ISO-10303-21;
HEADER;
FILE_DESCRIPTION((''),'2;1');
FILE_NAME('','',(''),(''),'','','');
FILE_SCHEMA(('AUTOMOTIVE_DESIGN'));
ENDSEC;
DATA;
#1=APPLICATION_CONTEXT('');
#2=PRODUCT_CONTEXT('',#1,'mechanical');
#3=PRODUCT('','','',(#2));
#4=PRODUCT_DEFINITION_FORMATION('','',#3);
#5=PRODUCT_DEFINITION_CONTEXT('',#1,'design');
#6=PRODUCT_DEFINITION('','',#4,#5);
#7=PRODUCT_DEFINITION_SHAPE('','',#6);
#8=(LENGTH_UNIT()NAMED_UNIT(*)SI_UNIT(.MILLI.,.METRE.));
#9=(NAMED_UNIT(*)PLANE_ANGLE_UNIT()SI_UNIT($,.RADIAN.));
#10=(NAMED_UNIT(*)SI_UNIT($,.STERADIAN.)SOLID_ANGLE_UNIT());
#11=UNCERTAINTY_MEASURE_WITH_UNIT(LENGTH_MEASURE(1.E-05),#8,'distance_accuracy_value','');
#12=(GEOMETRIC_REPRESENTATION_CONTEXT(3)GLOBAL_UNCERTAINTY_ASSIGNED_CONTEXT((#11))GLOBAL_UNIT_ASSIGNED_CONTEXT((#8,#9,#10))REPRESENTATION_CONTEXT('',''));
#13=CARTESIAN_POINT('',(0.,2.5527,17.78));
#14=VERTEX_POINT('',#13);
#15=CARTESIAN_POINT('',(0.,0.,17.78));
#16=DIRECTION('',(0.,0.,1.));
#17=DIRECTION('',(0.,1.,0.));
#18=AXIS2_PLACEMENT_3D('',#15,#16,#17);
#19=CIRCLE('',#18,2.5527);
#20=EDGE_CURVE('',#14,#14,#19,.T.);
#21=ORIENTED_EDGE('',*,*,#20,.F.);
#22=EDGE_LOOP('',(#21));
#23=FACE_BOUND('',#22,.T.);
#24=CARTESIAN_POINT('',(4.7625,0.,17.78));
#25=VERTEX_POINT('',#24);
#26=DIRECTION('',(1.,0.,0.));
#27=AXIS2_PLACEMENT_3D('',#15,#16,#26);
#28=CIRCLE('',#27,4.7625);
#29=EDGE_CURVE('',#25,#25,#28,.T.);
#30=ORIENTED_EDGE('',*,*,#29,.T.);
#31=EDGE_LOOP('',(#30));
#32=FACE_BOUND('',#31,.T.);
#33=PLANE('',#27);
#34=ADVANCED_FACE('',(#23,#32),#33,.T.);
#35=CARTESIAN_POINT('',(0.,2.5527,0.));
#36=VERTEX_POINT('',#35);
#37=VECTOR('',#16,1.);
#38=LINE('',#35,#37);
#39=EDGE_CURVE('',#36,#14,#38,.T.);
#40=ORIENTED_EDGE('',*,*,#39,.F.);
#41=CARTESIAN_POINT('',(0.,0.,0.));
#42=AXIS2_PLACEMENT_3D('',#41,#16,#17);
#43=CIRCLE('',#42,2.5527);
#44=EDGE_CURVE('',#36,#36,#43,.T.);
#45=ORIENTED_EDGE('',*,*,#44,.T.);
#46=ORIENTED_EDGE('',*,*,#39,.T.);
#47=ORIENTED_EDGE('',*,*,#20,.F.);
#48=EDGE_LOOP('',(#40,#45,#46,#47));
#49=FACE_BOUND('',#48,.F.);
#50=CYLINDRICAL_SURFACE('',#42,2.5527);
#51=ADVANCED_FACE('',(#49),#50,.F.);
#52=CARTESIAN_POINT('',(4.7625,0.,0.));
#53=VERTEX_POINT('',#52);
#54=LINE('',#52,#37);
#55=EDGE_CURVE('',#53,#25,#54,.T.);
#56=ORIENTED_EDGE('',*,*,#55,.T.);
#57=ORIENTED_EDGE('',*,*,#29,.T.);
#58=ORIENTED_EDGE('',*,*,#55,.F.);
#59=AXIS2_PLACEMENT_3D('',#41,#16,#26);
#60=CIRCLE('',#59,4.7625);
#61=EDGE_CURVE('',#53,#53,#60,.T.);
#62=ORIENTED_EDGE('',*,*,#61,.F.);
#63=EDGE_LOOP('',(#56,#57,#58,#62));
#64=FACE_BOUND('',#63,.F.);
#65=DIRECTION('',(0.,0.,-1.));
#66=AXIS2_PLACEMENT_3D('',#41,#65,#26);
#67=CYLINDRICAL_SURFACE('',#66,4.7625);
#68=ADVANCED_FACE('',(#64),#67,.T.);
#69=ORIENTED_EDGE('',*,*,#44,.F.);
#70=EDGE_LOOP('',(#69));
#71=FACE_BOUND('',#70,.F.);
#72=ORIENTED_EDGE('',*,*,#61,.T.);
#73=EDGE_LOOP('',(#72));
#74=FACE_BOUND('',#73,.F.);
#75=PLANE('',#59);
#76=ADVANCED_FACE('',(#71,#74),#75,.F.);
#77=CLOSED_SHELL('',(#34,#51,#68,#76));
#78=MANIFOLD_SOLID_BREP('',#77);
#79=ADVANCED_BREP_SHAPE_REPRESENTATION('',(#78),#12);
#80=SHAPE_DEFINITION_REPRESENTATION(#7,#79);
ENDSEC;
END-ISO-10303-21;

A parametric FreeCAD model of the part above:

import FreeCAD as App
import Part
import Sketcher
from FreeCAD import Vector
Q = App.Units.Quantity

doc = App.newDocument("Part")
body = doc.addObject("PartDesign::Body", "Body")

# Sketch on XY plane
sketch1 = body.newObject("Sketcher::SketchObject", "Sketch")
sketch1.AttachmentSupport = (doc.getObject("XY_Plane"), [""])
sketch1.MapMode = "FlatFace"
sketch1.addGeometry(Part.Circle(Vector(0, 0, 0), Vector(0, 0, 1), 4.7625), False)
sketch1.addConstraint([
    Sketcher.Constraint("Coincident", 0, 3, -1, 1),
    Sketcher.Constraint("Diameter", 0, Q("0.375 in")),
])
pad1 = body.newObject("PartDesign::Pad", "Pad")
pad1.Profile = sketch1
pad1.Length = Q("0.7 in")

# Sketch on XY plane
sketch2 = body.newObject("Sketcher::SketchObject", "Sketch001")
sketch2.AttachmentSupport = (doc.getObject("XY_Plane"), [""])
sketch2.MapMode = "FlatFace"
sketch2.addGeometry(Part.Circle(Vector(0, 0, 0), Vector(0, 0, 1), 2.5527), False)
sketch2.addConstraint([
    Sketcher.Constraint("Coincident", 0, 3, -1, 1),
    Sketcher.Constraint("Diameter", 0, Q("0.201 in")),
])
doc.recompute()
hole = body.newObject("PartDesign::Hole", "Hole")
hole.Profile = sketch2
hole.ThreadType = "None"
hole.Diameter = Q("0.201 in")
hole.DepthType = "ThroughAll"
hole.Reversed = True

doc.recompute()
